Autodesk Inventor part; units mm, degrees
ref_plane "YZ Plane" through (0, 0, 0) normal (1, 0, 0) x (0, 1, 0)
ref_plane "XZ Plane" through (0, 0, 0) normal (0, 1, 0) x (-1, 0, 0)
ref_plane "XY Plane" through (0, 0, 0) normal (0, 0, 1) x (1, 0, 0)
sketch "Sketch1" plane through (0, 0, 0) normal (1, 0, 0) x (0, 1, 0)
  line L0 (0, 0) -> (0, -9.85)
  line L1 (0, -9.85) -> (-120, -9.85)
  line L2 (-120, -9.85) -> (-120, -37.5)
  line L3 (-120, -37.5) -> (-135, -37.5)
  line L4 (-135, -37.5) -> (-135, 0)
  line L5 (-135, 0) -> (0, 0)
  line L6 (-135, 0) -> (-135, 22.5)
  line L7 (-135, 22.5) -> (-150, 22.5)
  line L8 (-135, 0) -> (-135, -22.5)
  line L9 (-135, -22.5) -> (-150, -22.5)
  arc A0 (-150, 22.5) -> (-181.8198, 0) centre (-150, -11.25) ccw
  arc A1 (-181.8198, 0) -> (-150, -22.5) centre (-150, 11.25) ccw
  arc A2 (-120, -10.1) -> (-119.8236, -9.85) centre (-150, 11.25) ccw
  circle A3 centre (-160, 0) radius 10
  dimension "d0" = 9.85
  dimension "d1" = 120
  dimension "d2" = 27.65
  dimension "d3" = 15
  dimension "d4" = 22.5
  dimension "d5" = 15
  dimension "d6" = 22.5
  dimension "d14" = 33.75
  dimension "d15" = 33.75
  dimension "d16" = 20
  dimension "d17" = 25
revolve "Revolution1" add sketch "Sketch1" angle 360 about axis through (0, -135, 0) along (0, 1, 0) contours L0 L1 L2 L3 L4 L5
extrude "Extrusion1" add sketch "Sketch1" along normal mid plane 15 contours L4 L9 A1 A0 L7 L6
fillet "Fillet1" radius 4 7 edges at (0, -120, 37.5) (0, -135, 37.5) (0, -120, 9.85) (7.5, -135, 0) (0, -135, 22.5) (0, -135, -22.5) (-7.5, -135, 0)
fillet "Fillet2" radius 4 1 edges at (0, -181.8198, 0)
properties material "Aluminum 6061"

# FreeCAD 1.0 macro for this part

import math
import FreeCAD as App
import Part
import Sketcher
from FreeCAD import Vector


def edges_at(feature, points):
    """Names of the edges that pass closest to the given points."""
    edges = feature.Shape.Edges
    near = lambda p: min(range(len(edges)), key=lambda i: edges[i].distToShape(Part.Vertex(*p))[0])
    return sorted({f"Edge{near(p) + 1}" for p in points})


def add_polygon(sketch, points):
    """Adds a closed chain of lines whose ends are joined by coincident constraints."""
    first, n = sketch.GeometryCount, len(points)
    for a, b in zip(points, points[1:] + points[:1]):
        sketch.addGeometry(Part.LineSegment(App.Vector(*a, 0), App.Vector(*b, 0)), False)
    for i in range(n):
        sketch.addConstraint(Sketcher.Constraint("Coincident", first + i, 2, first + (i + 1) % n, 1))

doc = App.newDocument("Part")
body = doc.addObject("PartDesign::Body", "Body")

sketch1 = doc.addObject("Sketcher::SketchObject", "Sketch")
body.addObject(sketch1)
sketch1.AttachmentSupport = (doc.YZ_Plane, [""])
sketch1.MapMode = "FlatFace"
add_polygon(sketch1, [(0, -10), (0, 0), (-135, 0), (-135, -38), (-120, -38), (-120, -10)])
sketch1.addConstraint(Sketcher.Constraint("Vertical", 0))
sketch1.addConstraint(Sketcher.Constraint("Horizontal", 1))
sketch1.addConstraint(Sketcher.Constraint("Vertical", 2))
sketch1.addConstraint(Sketcher.Constraint("Horizontal", 3))
sketch1.addConstraint(Sketcher.Constraint("Vertical", 4))
sketch1.addConstraint(Sketcher.Constraint("Horizontal", 5))
sketch1.addConstraint(Sketcher.Constraint("Coincident", 0, 2, -1, 1))
sketch1.addConstraint(Sketcher.Constraint("DistanceX", 3, 1, 3, 2, 15.0))
sketch1.addConstraint(Sketcher.Constraint("DistanceX", 5, 1, 5, 2, 120.0))
sketch1.addConstraint(Sketcher.Constraint("DistanceY", 0, 1, 0, 2, 9.85))
sketch1.addConstraint(Sketcher.Constraint("DistanceY", 4, 1, 4, 2, 27.65))
revolution = doc.addObject("PartDesign::Revolution", "Revolution")
body.addObject(revolution)
revolution.Profile = sketch1
revolution.ReferenceAxis = (sketch1, ["H_Axis"])
revolution.Angle = 360

sketch2 = doc.addObject("Sketcher::SketchObject", "Sketch001")
body.addObject(sketch2)
sketch2.AttachmentSupport = (doc.YZ_Plane, [""])
sketch2.MapMode = "FlatFace"
sketch2.addGeometry(Part.LineSegment(Vector(-135, -22, 0), Vector(-135, 22, 0)), False)
sketch2.addGeometry(Part.LineSegment(Vector(-135, 22, 0), Vector(-150, 22, 0)), False)
sketch2.addGeometry(Part.ArcOfCircle(Part.Circle(Vector(-150, -11, 0), Vector(0, 0, 1), 34), math.radians(90), math.radians(161)), False)
sketch2.addGeometry(Part.ArcOfCircle(Part.Circle(Vector(-150, 11, 0), Vector(0, 0, 1), 34), math.radians(-161), math.radians(-90)), False)
sketch2.addGeometry(Part.LineSegment(Vector(-150, -22, 0), Vector(-135, -22, 0)), False)
sketch2.addGeometry(Part.Circle(Vector(-160, 0, 0), Vector(0, 0, 1), 10), False)
sketch2.addConstraint(Sketcher.Constraint("Coincident", 0, 2, 1, 1))
sketch2.addConstraint(Sketcher.Constraint("Tangent", 1, 2, 2, 1))
sketch2.addConstraint(Sketcher.Constraint("Coincident", 2, 2, 3, 1))
sketch2.addConstraint(Sketcher.Constraint("Tangent", 3, 2, 4, 1))
sketch2.addConstraint(Sketcher.Constraint("Coincident", 4, 2, 0, 1))
sketch2.addConstraint(Sketcher.Constraint("Vertical", 0))
sketch2.addConstraint(Sketcher.Constraint("Horizontal", 1))
sketch2.addConstraint(Sketcher.Constraint("Horizontal", 4))
sketch2.addConstraint(Sketcher.Constraint("Equal", 2, 3))
sketch2.addConstraint(Sketcher.Constraint("Symmetric", 2, 3, 3, 3, -1))
sketch2.addConstraint(Sketcher.Constraint("PointOnObject", 5, 3, -1))
sketch2.addConstraint(Sketcher.Constraint("Diameter", 5, 20.0))
sketch2.addConstraint(Sketcher.Constraint("DistanceX", 1, 2, 1, 1, 15.0))
sketch2.addConstraint(Sketcher.Constraint("Radius", 2, 33.75))
sketch2.addConstraint(Sketcher.Constraint("DistanceX", 5, 3, 0, 2, 25.0))
sketch2.addConstraint(Sketcher.Constraint("DistanceY", -1, 1, 0, 2, 22.5))
sketch2.addConstraint(Sketcher.Constraint("DistanceX", 2, 3, -1, 1, 150.0))
pad1 = doc.addObject("PartDesign::Pad", "Pad")
body.addObject(pad1)
pad1.Profile = sketch2
pad1.Length = 15
pad1.Midplane = True
doc.recompute()

fillet = doc.addObject("PartDesign::Fillet", "Fillet")
body.addObject(fillet)
fillet.Base = (pad1, edges_at(pad1, [
    (0, -120, 37.5),
    (0, -135, 37.5),
    (0, -120, 9.85),
    (7.5, -135, 0),
    (0, -135, 22.5),
    (0, -135, -22.5),
    (-7.5, -135, 0),
]))
fillet.Radius = 4
doc.recompute()

fillet2 = doc.addObject("PartDesign::Fillet", "Fillet001")
body.addObject(fillet2)
fillet2.Base = (fillet, edges_at(fillet, [(0, -181.82, 0)]))
fillet2.Radius = 4

doc.recompute()
